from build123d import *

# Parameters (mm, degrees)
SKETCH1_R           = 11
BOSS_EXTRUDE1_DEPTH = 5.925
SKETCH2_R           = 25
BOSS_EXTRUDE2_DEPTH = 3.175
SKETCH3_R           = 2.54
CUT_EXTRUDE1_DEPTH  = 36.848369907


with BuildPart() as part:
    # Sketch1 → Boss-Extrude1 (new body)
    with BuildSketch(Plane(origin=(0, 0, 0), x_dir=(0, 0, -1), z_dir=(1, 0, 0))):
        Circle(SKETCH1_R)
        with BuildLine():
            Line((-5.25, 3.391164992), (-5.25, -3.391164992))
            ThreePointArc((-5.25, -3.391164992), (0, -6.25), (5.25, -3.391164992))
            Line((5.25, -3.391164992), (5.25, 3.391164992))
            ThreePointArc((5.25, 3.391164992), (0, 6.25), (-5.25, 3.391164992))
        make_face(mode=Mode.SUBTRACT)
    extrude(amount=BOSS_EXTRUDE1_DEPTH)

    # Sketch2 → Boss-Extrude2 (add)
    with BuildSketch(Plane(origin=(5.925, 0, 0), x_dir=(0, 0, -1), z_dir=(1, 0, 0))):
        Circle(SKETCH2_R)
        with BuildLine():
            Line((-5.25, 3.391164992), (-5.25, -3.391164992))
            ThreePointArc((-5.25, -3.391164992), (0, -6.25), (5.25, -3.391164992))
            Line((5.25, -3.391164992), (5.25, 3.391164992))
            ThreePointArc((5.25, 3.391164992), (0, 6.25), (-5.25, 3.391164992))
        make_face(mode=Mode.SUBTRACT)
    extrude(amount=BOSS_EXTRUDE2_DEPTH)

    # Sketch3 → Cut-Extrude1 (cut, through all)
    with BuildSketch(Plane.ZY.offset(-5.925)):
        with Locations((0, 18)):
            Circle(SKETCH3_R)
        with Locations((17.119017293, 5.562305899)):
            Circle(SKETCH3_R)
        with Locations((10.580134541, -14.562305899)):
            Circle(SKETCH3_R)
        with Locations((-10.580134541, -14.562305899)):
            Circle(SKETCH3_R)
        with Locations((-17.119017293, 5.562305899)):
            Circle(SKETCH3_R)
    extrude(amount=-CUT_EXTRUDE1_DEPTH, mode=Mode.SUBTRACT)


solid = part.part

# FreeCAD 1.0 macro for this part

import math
import FreeCAD as App
import Part
import Sketcher

V = App.Vector
Q = App.Units.Quantity

doc = App.newDocument("Part")
body = doc.addObject("PartDesign::Body", "Body")

# Sketch on YZ plane
sketch1 = body.newObject("Sketcher::SketchObject", "Sketch")
sketch1.AttachmentSupport = (doc.getObject("YZ_Plane"), [""])
sketch1.MapMode = "FlatFace"
sketch1.addGeometry([
    Part.Circle(V(0, 0, 0), V(0, 0, 1), 11),  # 0
    Part.LineSegment(V(-3.391165, 5.25, 0), V(3.391165, 5.25, 0)),  # 1
    Part.ArcOfCircle(Part.Circle(V(0, 0, 0), V(0, 0, 1), 6.25), math.radians(-57.14012), math.radians(57.14012)),  # 2
    Part.LineSegment(V(3.391165, -5.25, 0), V(-3.391165, -5.25, 0)),  # 3
    Part.ArcOfCircle(Part.Circle(V(0, 0, 0), V(0, 0, 1), 6.25), math.radians(122.85988), math.radians(237.14012)),  # 4
], False)
sketch1.addConstraint([
    Sketcher.Constraint("Coincident", 1, 2, 2, 2),
    Sketcher.Constraint("Coincident", 2, 1, 3, 1),
    Sketcher.Constraint("Coincident", 3, 2, 4, 2),
    Sketcher.Constraint("Coincident", 4, 1, 1, 1),
    Sketcher.Constraint("Horizontal", 1),
    Sketcher.Constraint("Horizontal", 3),
    Sketcher.Constraint("Coincident", 0, 3, -1, 1),
    Sketcher.Constraint("Coincident", 2, 3, -1, 1),
    Sketcher.Constraint("Coincident", 4, 3, -1, 1),
    Sketcher.Constraint("Equal", 2, 4),
    Sketcher.Constraint("Vertical", 1, 2, 2, 1),
    Sketcher.Constraint("Diameter", 0, Q("22 mm")),
    Sketcher.Constraint("Radius", 2, Q("6.25 mm")),
    Sketcher.Constraint("DistanceY", 2, 1, 1, 2, Q("10.5 mm")),
])
pad1 = body.newObject("PartDesign::Pad", "Pad")
pad1.Profile = sketch1
pad1.Length = 5.925

# Sketch on YZ plane
sketch2 = body.newObject("Sketcher::SketchObject", "Sketch001")
sketch2.AttachmentSupport = (doc.getObject("YZ_Plane"), [""])
sketch2.MapMode = "FlatFace"
sketch2.AttachmentOffset = App.Placement(V(0, 0, 5.925), App.Rotation())
sketch2.addGeometry([
    Part.Circle(V(0, 0, 0), V(0, 0, 1), 25),  # 0
    Part.LineSegment(V(-3.391165, 5.25, 0), V(3.391165, 5.25, 0)),  # 1
    Part.ArcOfCircle(Part.Circle(V(0, 0, 0), V(0, 0, 1), 6.25), math.radians(-57.14012), math.radians(57.14012)),  # 2
    Part.LineSegment(V(3.391165, -5.25, 0), V(-3.391165, -5.25, 0)),  # 3
    Part.ArcOfCircle(Part.Circle(V(0, 0, 0), V(0, 0, 1), 6.25), math.radians(122.85988), math.radians(237.14012)),  # 4
], False)
sketch2.addConstraint([
    Sketcher.Constraint("Coincident", 1, 2, 2, 2),
    Sketcher.Constraint("Coincident", 2, 1, 3, 1),
    Sketcher.Constraint("Coincident", 3, 2, 4, 2),
    Sketcher.Constraint("Coincident", 4, 1, 1, 1),
    Sketcher.Constraint("Horizontal", 1),
    Sketcher.Constraint("Horizontal", 3),
    Sketcher.Constraint("Coincident", 0, 3, -1, 1),
    Sketcher.Constraint("Coincident", 2, 3, -1, 1),
    Sketcher.Constraint("Coincident", 4, 3, -1, 1),
    Sketcher.Constraint("Equal", 2, 4),
    Sketcher.Constraint("Vertical", 1, 2, 2, 1),
    Sketcher.Constraint("Diameter", 0, Q("50 mm")),
    Sketcher.Constraint("Radius", 2, Q("6.25 mm")),
    Sketcher.Constraint("DistanceY", 2, 1, 1, 2, Q("10.5 mm")),
])
pad2 = body.newObject("PartDesign::Pad", "Pad001")
pad2.Profile = sketch2
pad2.Length = 3.175

# Sketch on YZ plane
sketch3 = body.newObject("Sketcher::SketchObject", "Sketch002")
sketch3.AttachmentSupport = (doc.getObject("YZ_Plane"), [""])
sketch3.MapMode = "FlatFace"
sketch3.AttachmentOffset = App.Placement(V(0, 0, 5.925), App.Rotation())
sketch3.addGeometry([
    Part.Circle(V(18, 0, 0), V(0, 0, 1), 2.54),  # 0
    Part.Circle(V(5.562306, 17.119017, 0), V(0, 0, 1), 2.54),  # 1
    Part.Circle(V(-14.562306, 10.580135, 0), V(0, 0, 1), 2.54),  # 2
    Part.Circle(V(-14.562306, -10.580135, 0), V(0, 0, 1), 2.54),  # 3
    Part.Circle(V(5.562306, -17.119017, 0), V(0, 0, 1), 2.54),  # 4
], False)
sketch3.addConstraint([
    Sketcher.Constraint("Equal", 0, 1),
    Sketcher.Constraint("Equal", 1, 2),
    Sketcher.Constraint("Equal", 2, 3),
    Sketcher.Constraint("Equal", 3, 4),
    Sketcher.Constraint("Symmetric", 2, 3, 3, 3, -1),
    Sketcher.Constraint("Symmetric", 1, 3, 4, 3, -1),
    Sketcher.Constraint("PointOnObject", 0, 3, -1),
    Sketcher.Constraint("Diameter", 0, Q("5.08 mm")),
    Sketcher.Constraint("DistanceX", -1, 1, 0, 3, Q("18 mm")),
    Sketcher.Constraint("DistanceX", 2, 3, 1, 3, Q("20.124612 mm")),
    Sketcher.Constraint("DistanceY", 3, 3, 2, 3, Q("21.160269 mm")),
    Sketcher.Constraint("DistanceY", 3, 3, 1, 3, Q("27.699152 mm")),
    Sketcher.Constraint("DistanceX", -1, 1, 1, 3, Q("5.562306 mm")),
])
pocket1 = body.newObject("PartDesign::Pocket", "Pocket")
pocket1.Profile = sketch3
pocket1.Type = "ThroughAll"
pocket1.Reversed = True

doc.recompute()
